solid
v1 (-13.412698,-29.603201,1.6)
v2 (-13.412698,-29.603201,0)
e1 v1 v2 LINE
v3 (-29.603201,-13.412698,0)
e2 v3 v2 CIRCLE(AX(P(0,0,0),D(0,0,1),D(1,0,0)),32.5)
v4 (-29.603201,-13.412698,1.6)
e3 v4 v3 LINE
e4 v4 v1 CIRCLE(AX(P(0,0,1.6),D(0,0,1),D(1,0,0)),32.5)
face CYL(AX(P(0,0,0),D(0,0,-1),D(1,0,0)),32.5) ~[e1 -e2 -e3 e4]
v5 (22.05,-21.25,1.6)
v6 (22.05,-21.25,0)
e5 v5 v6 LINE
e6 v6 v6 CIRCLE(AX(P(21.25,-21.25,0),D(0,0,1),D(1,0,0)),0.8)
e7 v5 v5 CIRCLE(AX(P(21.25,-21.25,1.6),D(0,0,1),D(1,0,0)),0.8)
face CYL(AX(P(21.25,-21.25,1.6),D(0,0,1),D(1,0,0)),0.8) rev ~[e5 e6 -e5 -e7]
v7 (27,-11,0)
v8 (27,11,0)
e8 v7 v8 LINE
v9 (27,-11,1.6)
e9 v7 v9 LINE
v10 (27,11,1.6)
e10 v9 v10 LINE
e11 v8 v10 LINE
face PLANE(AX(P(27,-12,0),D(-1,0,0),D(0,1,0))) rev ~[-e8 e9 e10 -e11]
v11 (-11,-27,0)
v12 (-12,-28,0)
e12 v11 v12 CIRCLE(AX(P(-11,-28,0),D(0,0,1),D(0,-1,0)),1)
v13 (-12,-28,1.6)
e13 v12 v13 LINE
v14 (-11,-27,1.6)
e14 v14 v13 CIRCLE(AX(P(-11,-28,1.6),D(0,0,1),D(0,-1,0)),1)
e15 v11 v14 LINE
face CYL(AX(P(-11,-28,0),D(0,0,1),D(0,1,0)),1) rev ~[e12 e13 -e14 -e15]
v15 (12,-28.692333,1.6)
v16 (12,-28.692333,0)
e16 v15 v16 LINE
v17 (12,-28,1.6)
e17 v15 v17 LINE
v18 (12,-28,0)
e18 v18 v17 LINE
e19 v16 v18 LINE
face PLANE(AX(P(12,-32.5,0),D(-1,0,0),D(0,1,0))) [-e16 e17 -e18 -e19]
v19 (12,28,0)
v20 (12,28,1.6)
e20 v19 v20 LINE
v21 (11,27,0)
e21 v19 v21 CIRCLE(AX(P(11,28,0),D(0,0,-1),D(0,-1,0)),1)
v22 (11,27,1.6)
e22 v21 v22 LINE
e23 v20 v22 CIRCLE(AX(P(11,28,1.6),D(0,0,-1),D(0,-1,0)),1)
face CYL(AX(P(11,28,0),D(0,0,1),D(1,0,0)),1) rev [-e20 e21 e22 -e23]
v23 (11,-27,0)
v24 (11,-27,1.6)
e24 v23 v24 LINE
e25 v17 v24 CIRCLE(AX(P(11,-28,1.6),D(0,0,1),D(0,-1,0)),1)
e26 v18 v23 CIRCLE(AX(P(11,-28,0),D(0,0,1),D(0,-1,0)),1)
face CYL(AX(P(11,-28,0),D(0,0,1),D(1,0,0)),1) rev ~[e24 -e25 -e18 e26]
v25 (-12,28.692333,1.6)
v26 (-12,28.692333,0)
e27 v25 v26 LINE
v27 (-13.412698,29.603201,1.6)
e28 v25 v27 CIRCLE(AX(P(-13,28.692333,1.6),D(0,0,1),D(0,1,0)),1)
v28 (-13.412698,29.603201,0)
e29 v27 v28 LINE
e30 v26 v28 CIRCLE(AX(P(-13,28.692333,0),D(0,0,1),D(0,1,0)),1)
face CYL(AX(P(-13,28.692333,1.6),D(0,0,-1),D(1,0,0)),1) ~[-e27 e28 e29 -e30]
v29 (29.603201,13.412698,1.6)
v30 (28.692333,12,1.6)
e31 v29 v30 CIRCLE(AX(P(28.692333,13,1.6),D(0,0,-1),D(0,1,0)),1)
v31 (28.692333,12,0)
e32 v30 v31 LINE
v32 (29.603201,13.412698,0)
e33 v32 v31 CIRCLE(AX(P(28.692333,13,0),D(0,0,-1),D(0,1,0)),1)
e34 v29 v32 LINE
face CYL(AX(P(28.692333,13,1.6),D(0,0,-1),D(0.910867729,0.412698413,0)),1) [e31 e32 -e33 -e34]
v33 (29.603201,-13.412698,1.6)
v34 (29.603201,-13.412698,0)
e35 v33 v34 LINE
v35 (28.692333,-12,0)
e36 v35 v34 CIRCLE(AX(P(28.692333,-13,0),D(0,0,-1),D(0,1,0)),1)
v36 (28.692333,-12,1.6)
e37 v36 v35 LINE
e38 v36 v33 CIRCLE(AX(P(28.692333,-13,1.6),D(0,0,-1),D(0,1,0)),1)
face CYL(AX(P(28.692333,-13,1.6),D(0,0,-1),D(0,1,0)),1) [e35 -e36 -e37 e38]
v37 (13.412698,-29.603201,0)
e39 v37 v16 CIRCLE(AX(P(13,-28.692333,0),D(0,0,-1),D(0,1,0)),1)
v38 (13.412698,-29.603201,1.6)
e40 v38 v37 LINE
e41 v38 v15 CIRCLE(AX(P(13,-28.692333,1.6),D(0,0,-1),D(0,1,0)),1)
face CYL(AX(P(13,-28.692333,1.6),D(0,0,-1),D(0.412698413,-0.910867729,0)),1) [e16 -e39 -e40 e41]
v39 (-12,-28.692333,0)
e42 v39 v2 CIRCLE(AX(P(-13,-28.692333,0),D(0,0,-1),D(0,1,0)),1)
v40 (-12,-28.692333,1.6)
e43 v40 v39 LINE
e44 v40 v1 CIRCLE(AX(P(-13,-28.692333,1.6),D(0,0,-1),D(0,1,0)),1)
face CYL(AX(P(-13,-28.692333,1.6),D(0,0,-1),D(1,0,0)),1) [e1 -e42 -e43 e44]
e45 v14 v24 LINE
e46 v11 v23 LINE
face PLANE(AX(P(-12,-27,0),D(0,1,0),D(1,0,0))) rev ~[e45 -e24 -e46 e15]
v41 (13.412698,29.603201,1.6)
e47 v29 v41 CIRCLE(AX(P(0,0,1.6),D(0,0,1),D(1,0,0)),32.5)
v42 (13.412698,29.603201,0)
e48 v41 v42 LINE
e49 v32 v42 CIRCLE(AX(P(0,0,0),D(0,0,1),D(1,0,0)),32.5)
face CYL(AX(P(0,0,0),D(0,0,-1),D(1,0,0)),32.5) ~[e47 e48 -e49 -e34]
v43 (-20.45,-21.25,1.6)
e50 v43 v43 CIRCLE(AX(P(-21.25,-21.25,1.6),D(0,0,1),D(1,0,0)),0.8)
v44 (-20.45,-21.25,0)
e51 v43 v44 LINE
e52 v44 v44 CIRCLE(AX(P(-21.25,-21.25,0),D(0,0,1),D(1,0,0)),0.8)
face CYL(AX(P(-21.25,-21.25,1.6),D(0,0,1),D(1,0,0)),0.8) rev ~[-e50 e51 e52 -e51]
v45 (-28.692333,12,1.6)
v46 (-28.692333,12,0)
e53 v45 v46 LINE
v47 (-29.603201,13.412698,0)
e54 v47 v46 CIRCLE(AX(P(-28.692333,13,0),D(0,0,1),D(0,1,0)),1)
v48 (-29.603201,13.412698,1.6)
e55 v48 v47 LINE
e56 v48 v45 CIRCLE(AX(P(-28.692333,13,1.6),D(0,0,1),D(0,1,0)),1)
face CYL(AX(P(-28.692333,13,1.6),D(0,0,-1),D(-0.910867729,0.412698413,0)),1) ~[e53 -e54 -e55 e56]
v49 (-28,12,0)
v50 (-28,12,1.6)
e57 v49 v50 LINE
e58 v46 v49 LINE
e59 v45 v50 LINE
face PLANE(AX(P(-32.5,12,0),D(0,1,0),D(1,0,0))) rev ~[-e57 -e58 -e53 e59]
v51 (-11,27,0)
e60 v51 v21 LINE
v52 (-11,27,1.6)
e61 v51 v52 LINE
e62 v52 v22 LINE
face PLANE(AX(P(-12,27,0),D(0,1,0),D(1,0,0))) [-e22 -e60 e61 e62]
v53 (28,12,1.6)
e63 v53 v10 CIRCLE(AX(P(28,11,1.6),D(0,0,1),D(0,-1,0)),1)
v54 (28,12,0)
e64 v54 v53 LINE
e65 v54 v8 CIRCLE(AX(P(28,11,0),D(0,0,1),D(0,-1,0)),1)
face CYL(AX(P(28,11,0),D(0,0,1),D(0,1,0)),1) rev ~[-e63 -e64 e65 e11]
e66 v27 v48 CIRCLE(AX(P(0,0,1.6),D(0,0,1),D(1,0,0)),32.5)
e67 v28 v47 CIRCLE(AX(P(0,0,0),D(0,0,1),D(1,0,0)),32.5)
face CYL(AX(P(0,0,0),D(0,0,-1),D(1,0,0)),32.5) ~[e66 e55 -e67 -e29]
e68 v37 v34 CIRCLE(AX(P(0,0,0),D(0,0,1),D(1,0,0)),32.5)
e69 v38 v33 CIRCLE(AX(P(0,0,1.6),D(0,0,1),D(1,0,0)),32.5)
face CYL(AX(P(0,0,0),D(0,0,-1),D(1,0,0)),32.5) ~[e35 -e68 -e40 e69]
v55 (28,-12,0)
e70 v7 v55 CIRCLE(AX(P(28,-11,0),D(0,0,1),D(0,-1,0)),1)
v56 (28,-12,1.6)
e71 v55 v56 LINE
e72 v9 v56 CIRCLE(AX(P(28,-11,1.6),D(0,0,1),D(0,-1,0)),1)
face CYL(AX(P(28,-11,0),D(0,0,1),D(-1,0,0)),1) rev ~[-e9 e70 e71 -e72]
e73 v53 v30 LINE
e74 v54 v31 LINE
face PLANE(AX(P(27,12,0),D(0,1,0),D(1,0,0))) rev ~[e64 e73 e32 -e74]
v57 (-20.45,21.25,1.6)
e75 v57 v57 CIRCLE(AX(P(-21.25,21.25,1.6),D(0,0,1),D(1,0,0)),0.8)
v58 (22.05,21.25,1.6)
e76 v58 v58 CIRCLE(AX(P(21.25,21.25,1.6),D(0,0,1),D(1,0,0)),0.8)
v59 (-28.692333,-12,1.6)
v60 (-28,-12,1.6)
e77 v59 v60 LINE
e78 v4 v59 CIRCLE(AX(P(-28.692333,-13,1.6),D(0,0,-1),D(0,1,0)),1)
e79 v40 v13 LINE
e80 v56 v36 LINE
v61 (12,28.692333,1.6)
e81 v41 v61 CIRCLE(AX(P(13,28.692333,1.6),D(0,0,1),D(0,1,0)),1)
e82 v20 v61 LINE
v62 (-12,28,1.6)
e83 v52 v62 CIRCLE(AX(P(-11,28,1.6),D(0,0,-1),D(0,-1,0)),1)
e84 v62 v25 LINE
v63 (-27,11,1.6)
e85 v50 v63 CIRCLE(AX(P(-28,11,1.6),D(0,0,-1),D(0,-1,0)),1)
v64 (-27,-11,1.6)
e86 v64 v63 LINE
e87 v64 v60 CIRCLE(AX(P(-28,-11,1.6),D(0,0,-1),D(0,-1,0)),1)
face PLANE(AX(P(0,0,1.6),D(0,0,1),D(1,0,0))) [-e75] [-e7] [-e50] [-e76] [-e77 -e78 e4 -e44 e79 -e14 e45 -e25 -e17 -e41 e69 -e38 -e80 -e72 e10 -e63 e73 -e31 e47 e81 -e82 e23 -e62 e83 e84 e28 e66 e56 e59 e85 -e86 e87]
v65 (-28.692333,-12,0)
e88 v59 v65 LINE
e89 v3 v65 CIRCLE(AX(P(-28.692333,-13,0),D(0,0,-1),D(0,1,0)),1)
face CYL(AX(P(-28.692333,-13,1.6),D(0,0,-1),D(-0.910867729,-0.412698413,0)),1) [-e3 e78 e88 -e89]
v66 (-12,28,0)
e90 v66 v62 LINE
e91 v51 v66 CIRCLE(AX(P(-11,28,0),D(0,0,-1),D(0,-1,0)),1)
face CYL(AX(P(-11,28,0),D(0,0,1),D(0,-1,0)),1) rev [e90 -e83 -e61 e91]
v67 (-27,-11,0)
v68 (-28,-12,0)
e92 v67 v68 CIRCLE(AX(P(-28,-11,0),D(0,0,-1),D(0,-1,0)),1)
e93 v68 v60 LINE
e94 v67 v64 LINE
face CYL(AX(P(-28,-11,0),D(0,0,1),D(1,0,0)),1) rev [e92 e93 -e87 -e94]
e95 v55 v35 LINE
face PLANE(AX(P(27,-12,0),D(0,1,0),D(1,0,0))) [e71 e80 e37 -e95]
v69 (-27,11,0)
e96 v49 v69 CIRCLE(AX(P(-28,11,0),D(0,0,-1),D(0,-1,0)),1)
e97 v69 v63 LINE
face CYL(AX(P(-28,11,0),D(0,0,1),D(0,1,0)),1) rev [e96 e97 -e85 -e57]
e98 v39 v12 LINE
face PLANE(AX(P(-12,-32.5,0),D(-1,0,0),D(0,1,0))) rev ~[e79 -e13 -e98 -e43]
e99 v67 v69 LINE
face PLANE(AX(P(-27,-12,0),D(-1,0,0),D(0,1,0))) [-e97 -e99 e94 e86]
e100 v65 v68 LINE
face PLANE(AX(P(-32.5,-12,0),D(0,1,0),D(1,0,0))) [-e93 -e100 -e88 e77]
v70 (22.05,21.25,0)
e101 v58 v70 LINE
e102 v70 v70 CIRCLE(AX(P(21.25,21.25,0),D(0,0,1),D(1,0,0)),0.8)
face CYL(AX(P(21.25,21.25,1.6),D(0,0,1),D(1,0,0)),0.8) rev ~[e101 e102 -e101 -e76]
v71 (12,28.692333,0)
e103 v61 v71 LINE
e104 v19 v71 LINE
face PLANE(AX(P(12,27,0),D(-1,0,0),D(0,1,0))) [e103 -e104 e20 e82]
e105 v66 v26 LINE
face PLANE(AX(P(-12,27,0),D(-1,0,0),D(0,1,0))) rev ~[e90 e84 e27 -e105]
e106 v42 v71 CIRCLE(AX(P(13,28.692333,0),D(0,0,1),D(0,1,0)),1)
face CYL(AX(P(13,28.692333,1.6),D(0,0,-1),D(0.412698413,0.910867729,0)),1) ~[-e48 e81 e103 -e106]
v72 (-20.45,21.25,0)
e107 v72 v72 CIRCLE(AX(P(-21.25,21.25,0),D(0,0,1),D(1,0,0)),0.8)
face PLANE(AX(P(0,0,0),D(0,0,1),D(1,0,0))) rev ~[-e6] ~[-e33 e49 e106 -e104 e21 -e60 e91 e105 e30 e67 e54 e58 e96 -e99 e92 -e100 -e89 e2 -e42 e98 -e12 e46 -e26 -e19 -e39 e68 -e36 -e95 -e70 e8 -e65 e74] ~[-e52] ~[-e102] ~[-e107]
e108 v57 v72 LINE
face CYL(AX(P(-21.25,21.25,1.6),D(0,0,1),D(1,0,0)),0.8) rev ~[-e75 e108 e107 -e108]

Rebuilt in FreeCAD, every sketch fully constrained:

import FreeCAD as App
import Part
import Sketcher
from FreeCAD import Vector
Q = App.Units.Quantity


def edges_at(feature, points):
    """Names of the edges that pass closest to the given points."""
    edges = feature.Shape.Edges
    near = lambda p: min(range(len(edges)), key=lambda i: edges[i].distToShape(Part.Vertex(*p))[0])
    return sorted({f"Edge{near(p) + 1}" for p in points})

doc = App.newDocument("Part")
body = doc.addObject("PartDesign::Body", "Body")

sketch1 = body.newObject("Sketcher::SketchObject", "Sketch")
sketch1.AttachmentSupport = (doc.getObject("XY_Plane"), [""])
sketch1.MapMode = "FlatFace"
sketch1.addGeometry(Part.Circle(Vector(0, 0, 0), Vector(0, 0, 1), 32), False)
sketch1.addConstraint([
    Sketcher.Constraint("Coincident", 0, 3, -1, 1),
    Sketcher.Constraint("Diameter", 0, Q("65 mm")),
])
pad1 = body.newObject("PartDesign::Pad", "Pad")
pad1.Profile = sketch1
pad1.Length = 1.6

sketch2 = body.newObject("Sketcher::SketchObject", "Sketch001")
sketch2.AttachmentSupport = (doc.getObject("XY_Plane"), [""])
sketch2.MapMode = "FlatFace"
sketch2.addGeometry([
    Part.LineSegment(Vector(-12, -27, 0), Vector(-12, -32, 0)),
    Part.LineSegment(Vector(-12, -32, 0), Vector(12, -32, 0)),
    Part.LineSegment(Vector(12, -32, 0), Vector(12, -27, 0)),
    Part.LineSegment(Vector(12, -27, 0), Vector(-12, -27, 0)),
    Part.LineSegment(Vector(27, 12, 0), Vector(27, -12, 0)),
    Part.LineSegment(Vector(27, -12, 0), Vector(32, -12, 0)),
    Part.LineSegment(Vector(32, -12, 0), Vector(32, 12, 0)),
    Part.LineSegment(Vector(32, 12, 0), Vector(27, 12, 0)),
    Part.LineSegment(Vector(-32, 12, 0), Vector(-32, -12, 0)),
    Part.LineSegment(Vector(-32, -12, 0), Vector(-27, -12, 0)),
    Part.LineSegment(Vector(-27, -12, 0), Vector(-27, 12, 0)),
    Part.LineSegment(Vector(-27, 12, 0), Vector(-32, 12, 0)),
    Part.LineSegment(Vector(-12, 32, 0), Vector(-12, 27, 0)),
    Part.LineSegment(Vector(-12, 27, 0), Vector(12, 27, 0)),
    Part.LineSegment(Vector(12, 27, 0), Vector(12, 32, 0)),
    Part.LineSegment(Vector(12, 32, 0), Vector(-12, 32, 0)),
], False)
sketch2.addConstraint([
    Sketcher.Constraint("Coincident", 0, 2, 1, 1),
    Sketcher.Constraint("Coincident", 1, 2, 2, 1),
    Sketcher.Constraint("Coincident", 2, 2, 3, 1),
    Sketcher.Constraint("Coincident", 3, 2, 0, 1),
    Sketcher.Constraint("Coincident", 4, 2, 5, 1),
    Sketcher.Constraint("Coincident", 5, 2, 6, 1),
    Sketcher.Constraint("Coincident", 6, 2, 7, 1),
    Sketcher.Constraint("Coincident", 7, 2, 4, 1),
    Sketcher.Constraint("Coincident", 8, 2, 9, 1),
    Sketcher.Constraint("Coincident", 9, 2, 10, 1),
    Sketcher.Constraint("Coincident", 10, 2, 11, 1),
    Sketcher.Constraint("Coincident", 11, 2, 8, 1),
    Sketcher.Constraint("Coincident", 12, 2, 13, 1),
    Sketcher.Constraint("Coincident", 13, 2, 14, 1),
    Sketcher.Constraint("Coincident", 14, 2, 15, 1),
    Sketcher.Constraint("Coincident", 15, 2, 12, 1),
    Sketcher.Constraint("Vertical", 0),
    Sketcher.Constraint("Horizontal", 1),
    Sketcher.Constraint("Vertical", 2),
    Sketcher.Constraint("Horizontal", 3),
    Sketcher.Constraint("Vertical", 4),
    Sketcher.Constraint("Horizontal", 5),
    Sketcher.Constraint("Vertical", 6),
    Sketcher.Constraint("Horizontal", 7),
    Sketcher.Constraint("Vertical", 8),
    Sketcher.Constraint("Horizontal", 9),
    Sketcher.Constraint("Vertical", 10),
    Sketcher.Constraint("Horizontal", 11),
    Sketcher.Constraint("Vertical", 12),
    Sketcher.Constraint("Horizontal", 13),
    Sketcher.Constraint("Vertical", 14),
    Sketcher.Constraint("Horizontal", 15),
    Sketcher.Constraint("Symmetric", 6, 2, 8, 2, -1, 1),
    Sketcher.Constraint("Symmetric", 4, 2, 10, 2, -1, 1),
    Sketcher.Constraint("Symmetric", 2, 2, 12, 2, -1, 1),
    Sketcher.Constraint("Symmetric", 0, 2, 14, 2, -1, 1),
    Sketcher.Constraint("Horizontal", 5, 2, 8, 2),
    Sketcher.Constraint("Vertical", 3, 2, 12, 2),
    Sketcher.Constraint("Equal", 11, 0),
    Sketcher.Constraint("Equal", 15, 4),
    Sketcher.Constraint("DistanceX", 1, 1, 1, 2, Q("24 mm")),
    Sketcher.Constraint("DistanceX", 5, 1, 5, 2, Q("5.5 mm")),
    Sketcher.Constraint("DistanceY", 2, 2, -1, 1, Q("27 mm")),
    Sketcher.Constraint("DistanceX", -1, 1, 4, 2, Q("27 mm")),
])
pocket1 = body.newObject("PartDesign::Pocket", "Pocket")
pocket1.Profile = sketch2
pocket1.Length = 1.6
pocket1.Reversed = True

sketch3 = body.newObject("Sketcher::SketchObject", "Sketch002")
sketch3.AttachmentSupport = (doc.getObject("XY_Plane"), [""])
sketch3.MapMode = "FlatFace"
sketch3.AttachmentOffset = App.Placement(Vector(0, 0, 1.6), App.Rotation())
sketch3.addGeometry([
    Part.Circle(Vector(21.2, 21.2, 0), Vector(0, 0, 1), 0.8),
    Part.Circle(Vector(21.2, -21.2, 0), Vector(0, 0, 1), 0.8),
    Part.Circle(Vector(-21.2, -21.2, 0), Vector(0, 0, 1), 0.8),
    Part.Circle(Vector(-21.2, 21.2, 0), Vector(0, 0, 1), 0.8),
], False)
sketch3.addConstraint([
    Sketcher.Constraint("Equal", 0, 1),
    Sketcher.Constraint("Equal", 1, 2),
    Sketcher.Constraint("Equal", 2, 3),
    Sketcher.Constraint("Symmetric", 0, 3, 2, 3, -1, 1),
    Sketcher.Constraint("Symmetric", 1, 3, 3, 3, -1, 1),
    Sketcher.Constraint("Symmetric", 1, 3, 2, 3, -2),
    Sketcher.Constraint("Diameter", 0, Q("1.6 mm")),
    Sketcher.Constraint("DistanceY", 1, 3, 0, 3, Q("42.5 mm")),
    Sketcher.Constraint("DistanceX", 2, 3, 1, 3, Q("42.5 mm")),
])
pocket2 = body.newObject("PartDesign::Pocket", "Pocket001")
pocket2.Profile = sketch3
pocket2.Length = 1.6
doc.recompute()

fillet = body.newObject("PartDesign::Fillet", "Fillet")
fillet.Base = (pocket2, edges_at(pocket2, [
    (27, -12, 0.8),
    (27, 12, 0.8),
    (30.203, -12, 0.8),
    (30.203, 12, 0.8),
    (-12, -27, 0.8),
    (12, -30.203, 0.8),
    (12, -27, 0.8),
    (-12, -30.203, 0.8),
    (-27, 12, 0.8),
    (-30.203, -12, 0.8),
    (-27, -12, 0.8),
    (-30.203, 12, 0.8),
    (12, 27, 0.8),
    (-12, 30.203, 0.8),
    (-12, 27, 0.8),
    (12, 30.203, 0.8),
]))
fillet.Radius = 1

doc.recompute()
